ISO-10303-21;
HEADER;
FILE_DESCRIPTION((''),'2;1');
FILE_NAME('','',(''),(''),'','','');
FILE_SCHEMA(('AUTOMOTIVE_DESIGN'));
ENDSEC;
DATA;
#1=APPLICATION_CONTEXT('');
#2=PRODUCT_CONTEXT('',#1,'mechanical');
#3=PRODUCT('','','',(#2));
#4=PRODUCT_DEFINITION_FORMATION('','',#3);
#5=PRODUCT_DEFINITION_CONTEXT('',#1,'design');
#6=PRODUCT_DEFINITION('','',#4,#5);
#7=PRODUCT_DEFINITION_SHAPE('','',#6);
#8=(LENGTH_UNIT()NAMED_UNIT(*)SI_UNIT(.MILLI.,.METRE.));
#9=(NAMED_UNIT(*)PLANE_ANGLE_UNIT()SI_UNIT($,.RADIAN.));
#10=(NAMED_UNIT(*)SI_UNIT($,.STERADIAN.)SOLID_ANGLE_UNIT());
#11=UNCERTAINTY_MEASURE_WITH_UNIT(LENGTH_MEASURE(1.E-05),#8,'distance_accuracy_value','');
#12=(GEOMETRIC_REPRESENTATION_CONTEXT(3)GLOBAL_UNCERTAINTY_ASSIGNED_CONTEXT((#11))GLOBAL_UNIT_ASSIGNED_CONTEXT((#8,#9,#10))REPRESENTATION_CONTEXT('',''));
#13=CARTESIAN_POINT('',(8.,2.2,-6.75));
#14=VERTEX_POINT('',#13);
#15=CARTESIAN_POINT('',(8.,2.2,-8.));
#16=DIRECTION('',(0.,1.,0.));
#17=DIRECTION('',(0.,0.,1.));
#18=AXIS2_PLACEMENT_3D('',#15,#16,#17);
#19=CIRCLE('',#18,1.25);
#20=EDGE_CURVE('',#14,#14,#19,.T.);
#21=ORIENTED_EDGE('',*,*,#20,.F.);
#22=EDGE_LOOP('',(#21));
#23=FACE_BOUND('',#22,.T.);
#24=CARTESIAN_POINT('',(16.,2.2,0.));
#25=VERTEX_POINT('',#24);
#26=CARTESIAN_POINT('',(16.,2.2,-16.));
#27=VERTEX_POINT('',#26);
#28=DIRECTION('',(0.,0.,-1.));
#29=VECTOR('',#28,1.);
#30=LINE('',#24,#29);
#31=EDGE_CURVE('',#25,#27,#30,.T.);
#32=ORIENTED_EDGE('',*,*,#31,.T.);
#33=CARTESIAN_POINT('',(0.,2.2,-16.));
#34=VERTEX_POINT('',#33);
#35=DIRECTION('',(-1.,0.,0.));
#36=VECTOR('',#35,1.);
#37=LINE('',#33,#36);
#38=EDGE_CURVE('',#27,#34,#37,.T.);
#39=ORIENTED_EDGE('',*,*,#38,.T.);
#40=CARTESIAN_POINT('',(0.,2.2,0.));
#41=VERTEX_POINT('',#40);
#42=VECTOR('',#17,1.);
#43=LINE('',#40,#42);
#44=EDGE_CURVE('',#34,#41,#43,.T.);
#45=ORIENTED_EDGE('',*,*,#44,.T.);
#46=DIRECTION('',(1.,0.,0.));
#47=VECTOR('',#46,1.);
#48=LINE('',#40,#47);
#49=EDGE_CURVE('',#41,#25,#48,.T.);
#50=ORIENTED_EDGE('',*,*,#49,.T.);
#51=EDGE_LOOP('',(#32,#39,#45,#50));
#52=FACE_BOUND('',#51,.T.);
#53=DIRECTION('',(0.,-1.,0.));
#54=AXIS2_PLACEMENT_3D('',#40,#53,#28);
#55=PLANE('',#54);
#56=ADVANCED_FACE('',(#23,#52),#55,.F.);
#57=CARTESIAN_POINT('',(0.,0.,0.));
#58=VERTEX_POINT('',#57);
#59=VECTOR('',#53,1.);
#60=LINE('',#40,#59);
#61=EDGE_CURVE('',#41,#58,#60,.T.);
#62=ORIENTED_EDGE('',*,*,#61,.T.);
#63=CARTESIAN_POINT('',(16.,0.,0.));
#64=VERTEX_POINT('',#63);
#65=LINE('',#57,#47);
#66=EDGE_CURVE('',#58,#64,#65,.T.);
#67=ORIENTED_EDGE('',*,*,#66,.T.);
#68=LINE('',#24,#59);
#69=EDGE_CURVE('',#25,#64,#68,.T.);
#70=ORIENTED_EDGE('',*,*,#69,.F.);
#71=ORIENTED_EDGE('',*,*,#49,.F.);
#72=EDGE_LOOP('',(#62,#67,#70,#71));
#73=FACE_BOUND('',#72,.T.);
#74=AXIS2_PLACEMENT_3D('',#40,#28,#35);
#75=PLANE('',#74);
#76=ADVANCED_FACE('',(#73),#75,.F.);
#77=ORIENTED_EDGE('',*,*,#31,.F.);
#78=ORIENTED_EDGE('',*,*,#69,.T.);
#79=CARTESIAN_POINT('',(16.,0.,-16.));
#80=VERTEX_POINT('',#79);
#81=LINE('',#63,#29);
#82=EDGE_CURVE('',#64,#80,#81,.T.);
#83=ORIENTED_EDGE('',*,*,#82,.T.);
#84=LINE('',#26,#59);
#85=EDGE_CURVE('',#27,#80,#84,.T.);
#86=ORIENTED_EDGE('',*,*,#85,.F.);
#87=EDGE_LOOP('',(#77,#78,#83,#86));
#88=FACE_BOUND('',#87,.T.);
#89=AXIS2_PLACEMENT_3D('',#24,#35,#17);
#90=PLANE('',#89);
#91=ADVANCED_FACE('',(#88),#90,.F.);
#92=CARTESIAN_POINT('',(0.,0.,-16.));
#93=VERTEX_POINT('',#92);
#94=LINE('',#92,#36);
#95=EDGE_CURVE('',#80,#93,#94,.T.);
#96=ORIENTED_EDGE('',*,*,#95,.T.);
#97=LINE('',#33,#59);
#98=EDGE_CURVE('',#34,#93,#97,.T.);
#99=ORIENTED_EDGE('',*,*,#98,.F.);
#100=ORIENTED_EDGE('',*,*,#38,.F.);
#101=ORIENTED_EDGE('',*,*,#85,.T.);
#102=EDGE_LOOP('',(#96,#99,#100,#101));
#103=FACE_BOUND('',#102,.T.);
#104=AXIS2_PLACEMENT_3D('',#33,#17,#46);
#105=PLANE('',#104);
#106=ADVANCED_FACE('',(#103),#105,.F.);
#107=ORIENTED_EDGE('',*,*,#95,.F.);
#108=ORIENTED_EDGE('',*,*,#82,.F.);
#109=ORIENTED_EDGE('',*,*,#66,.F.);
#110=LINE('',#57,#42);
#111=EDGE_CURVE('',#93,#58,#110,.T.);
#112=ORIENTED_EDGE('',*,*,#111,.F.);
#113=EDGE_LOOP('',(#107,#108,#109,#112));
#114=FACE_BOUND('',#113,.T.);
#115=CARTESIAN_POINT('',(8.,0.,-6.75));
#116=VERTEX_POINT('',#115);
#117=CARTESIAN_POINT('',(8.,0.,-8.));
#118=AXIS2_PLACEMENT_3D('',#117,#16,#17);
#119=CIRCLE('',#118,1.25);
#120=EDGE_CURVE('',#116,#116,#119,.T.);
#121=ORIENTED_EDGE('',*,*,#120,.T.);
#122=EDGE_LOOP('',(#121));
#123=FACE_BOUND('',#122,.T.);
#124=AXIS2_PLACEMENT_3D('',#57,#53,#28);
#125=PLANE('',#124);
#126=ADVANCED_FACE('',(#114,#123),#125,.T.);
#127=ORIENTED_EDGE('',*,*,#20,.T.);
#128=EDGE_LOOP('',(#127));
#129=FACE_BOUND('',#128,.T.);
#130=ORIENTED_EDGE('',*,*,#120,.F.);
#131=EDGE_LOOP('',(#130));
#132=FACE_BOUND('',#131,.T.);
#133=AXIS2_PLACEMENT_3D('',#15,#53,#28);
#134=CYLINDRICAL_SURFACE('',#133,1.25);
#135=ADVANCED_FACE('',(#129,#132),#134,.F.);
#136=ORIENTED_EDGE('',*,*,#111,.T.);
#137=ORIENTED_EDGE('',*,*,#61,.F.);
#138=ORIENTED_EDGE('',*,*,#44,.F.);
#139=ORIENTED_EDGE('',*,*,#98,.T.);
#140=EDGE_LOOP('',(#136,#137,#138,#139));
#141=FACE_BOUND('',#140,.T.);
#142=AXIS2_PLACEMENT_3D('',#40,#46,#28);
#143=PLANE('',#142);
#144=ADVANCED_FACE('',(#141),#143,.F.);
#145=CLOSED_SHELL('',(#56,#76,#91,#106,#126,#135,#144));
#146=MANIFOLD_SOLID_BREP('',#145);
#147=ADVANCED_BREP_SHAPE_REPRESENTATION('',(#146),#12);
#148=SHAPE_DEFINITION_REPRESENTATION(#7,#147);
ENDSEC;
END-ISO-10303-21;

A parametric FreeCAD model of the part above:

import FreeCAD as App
import Part
import Sketcher
from FreeCAD import Vector


def add_polygon(sketch, points):
    """Adds a closed chain of lines whose ends are joined by coincident constraints."""
    first, n = sketch.GeometryCount, len(points)
    for a, b in zip(points, points[1:] + points[:1]):
        sketch.addGeometry(Part.LineSegment(App.Vector(*a, 0), App.Vector(*b, 0)), False)
    for i in range(n):
        sketch.addConstraint(Sketcher.Constraint("Coincident", first + i, 2, first + (i + 1) % n, 1))

doc = App.newDocument("Part")
body = doc.addObject("PartDesign::Body", "Body")

sketch1 = body.newObject("Sketcher::SketchObject", "Sketch")
sketch1.AttachmentSupport = (doc.getObject("XZ_Plane"), [""])
sketch1.MapMode = "FlatFace"
add_polygon(sketch1, [(0, -16), (0, 0), (16, 0), (16, -16)])
sketch1.addGeometry(Part.Circle(Vector(8, -8, 0), Vector(0, 0, 1), 1.2), False)
sketch1.addConstraint([
    Sketcher.Constraint("Vertical", 0),
    Sketcher.Constraint("Horizontal", 1),
    Sketcher.Constraint("Vertical", 2),
    Sketcher.Constraint("Horizontal", 3),
    Sketcher.Constraint("Coincident", 0, 2, -1, 1),
    Sketcher.Constraint("Equal", 3, 0),
    Sketcher.Constraint("Diameter", 4, 2.5),
    Sketcher.Constraint("DistanceX", 1, 1, 1, 2, 16.0),
    Sketcher.Constraint("DistanceX", -1, 1, 4, 3, 8.0),
    Sketcher.Constraint("DistanceY", 4, 3, -1, 1, 8.0),
])
pad1 = body.newObject("PartDesign::Pad", "Pad")
pad1.Profile = sketch1
pad1.Length = 2.2
pad1.Reversed = True

doc.recompute()
